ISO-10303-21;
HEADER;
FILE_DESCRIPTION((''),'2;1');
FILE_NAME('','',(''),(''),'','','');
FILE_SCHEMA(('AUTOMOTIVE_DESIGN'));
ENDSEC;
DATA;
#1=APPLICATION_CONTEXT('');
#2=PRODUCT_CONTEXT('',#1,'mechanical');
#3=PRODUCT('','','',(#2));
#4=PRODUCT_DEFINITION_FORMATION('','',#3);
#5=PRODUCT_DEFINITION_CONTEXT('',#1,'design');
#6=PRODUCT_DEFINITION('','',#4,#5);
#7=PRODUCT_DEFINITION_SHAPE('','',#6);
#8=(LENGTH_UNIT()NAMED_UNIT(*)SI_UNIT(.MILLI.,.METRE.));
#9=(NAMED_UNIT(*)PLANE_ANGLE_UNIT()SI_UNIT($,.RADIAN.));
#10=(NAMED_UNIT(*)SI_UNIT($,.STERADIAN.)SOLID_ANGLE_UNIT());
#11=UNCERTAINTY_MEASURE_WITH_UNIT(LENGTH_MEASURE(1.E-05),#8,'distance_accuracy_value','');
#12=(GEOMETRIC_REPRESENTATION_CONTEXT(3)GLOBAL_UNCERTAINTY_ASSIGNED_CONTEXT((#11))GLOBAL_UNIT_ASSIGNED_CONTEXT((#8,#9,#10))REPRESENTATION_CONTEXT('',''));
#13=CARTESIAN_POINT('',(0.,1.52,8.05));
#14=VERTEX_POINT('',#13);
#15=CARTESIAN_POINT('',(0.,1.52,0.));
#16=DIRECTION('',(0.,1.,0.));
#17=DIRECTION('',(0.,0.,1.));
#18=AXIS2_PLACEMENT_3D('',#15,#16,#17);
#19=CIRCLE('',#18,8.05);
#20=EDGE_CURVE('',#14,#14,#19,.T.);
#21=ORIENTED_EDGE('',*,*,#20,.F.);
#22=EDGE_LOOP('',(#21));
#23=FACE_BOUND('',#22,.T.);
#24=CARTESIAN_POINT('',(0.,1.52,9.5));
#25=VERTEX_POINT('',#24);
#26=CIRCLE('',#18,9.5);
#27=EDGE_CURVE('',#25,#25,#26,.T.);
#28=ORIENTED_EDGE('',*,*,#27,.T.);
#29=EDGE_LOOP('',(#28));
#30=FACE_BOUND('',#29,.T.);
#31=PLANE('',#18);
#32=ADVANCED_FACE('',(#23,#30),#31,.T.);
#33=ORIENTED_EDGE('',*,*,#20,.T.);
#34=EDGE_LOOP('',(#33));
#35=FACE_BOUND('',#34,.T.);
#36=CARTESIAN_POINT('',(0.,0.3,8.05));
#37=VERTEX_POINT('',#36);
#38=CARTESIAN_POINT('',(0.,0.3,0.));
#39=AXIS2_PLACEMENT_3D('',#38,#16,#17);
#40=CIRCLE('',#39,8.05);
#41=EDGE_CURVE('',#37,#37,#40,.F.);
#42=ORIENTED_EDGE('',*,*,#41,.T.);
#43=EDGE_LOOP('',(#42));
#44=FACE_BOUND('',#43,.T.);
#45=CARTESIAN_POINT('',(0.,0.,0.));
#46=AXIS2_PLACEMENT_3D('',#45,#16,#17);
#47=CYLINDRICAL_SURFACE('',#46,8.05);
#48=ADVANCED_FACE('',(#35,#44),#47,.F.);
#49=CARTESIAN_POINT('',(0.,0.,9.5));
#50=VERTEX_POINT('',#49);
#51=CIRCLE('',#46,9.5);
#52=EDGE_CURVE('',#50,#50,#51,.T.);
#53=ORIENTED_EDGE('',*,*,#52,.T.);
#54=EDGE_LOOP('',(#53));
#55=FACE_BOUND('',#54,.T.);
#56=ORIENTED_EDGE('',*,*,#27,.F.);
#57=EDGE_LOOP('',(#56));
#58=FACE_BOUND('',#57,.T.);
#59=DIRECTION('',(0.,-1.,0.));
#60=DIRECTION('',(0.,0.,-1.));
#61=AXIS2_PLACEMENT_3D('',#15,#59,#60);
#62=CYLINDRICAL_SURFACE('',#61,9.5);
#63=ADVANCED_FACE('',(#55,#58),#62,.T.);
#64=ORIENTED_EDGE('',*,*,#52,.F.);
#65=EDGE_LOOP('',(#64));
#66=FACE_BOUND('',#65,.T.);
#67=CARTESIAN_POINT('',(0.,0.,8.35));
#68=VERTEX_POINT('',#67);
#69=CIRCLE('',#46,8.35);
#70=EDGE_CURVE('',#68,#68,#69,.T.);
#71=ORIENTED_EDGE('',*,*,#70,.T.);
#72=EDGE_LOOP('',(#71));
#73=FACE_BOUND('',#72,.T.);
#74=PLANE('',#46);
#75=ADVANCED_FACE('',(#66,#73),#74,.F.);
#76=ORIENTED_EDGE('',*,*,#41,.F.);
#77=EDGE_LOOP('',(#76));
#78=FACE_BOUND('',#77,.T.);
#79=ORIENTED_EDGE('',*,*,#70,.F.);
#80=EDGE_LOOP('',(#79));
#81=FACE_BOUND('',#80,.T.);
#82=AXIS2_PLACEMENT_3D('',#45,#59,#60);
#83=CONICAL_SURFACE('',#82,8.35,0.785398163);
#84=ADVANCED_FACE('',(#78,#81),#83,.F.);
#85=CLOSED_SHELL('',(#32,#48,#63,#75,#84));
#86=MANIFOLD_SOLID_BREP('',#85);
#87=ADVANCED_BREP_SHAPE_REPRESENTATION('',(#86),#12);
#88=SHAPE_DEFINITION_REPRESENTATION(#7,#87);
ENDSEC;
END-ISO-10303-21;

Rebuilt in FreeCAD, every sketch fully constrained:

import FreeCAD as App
import Part
import Sketcher


def edges_at(feature, points):
    """Names of the edges that pass closest to the given points."""
    edges = feature.Shape.Edges
    near = lambda p: min(range(len(edges)), key=lambda i: edges[i].distToShape(Part.Vertex(*p))[0])
    return sorted({f"Edge{near(p) + 1}" for p in points})

doc = App.newDocument("Part")
body = doc.addObject("PartDesign::Body", "Body")

# Sketch on XZ plane
sketch1 = body.newObject("Sketcher::SketchObject", "Sketch")
sketch1.AttachmentSupport = (doc.getObject("XZ_Plane"), [""])
sketch1.MapMode = "FlatFace"
sketch1.addGeometry(Part.Circle(App.Vector(0, 0, 0), App.Vector(0, 0, 1), 9.5), False)
sketch1.addConstraint(Sketcher.Constraint("Coincident", 0, 3, -1, 1))
sketch1.addConstraint(Sketcher.Constraint("Diameter", 0, 19.0))
pad1 = body.newObject("PartDesign::Pad", "Pad")
pad1.Profile = sketch1
pad1.Length = 1.52
pad1.Reversed = True

# Sketch on XZ plane
sketch2 = body.newObject("Sketcher::SketchObject", "Sketch001")
sketch2.AttachmentSupport = (doc.getObject("XZ_Plane"), [""])
sketch2.MapMode = "FlatFace"
sketch2.AttachmentOffset = App.Placement(App.Vector(0, 0, -1.52), App.Rotation())
sketch2.addGeometry(Part.Circle(App.Vector(0, 0, 0), App.Vector(0, 0, 1), 8.05), False)
sketch2.addConstraint(Sketcher.Constraint("Coincident", 0, 3, -1, 1))
sketch2.addConstraint(Sketcher.Constraint("Diameter", 0, 16.1))
pocket1 = body.newObject("PartDesign::Pocket", "Pocket")
pocket1.Profile = sketch2
pocket1.Type = "ThroughAll"
pocket1.Reversed = True
doc.recompute()

chamfer = body.newObject("PartDesign::Chamfer", "Chamfer")
chamfer.Base = (pocket1, edges_at(pocket1, [(-8.05, 0, 0)]))
chamfer.Size = 0.3

doc.recompute()
